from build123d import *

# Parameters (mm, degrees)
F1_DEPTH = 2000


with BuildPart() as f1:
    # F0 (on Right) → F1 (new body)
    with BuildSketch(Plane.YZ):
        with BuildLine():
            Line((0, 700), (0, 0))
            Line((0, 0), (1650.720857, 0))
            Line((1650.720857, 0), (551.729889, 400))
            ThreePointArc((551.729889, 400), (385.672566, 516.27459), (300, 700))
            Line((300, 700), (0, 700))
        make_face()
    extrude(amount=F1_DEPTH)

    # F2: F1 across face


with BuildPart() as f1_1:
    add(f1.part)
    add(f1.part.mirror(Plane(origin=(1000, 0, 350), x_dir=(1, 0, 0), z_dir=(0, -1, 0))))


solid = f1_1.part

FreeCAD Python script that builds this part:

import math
import FreeCAD as App
import Part
import Sketcher
Q = App.Units.Quantity

doc = App.newDocument("Part")
params = doc.addObject("Spreadsheet::Sheet", "Params")
for row, (alias, value) in enumerate([
    ("sketch1_width", "300 mm"),
    ("sketch1_height", "700 mm"),
    ("pad1_length", "2000 mm"),
], start=1):
    params.set(f"A{row}", alias)
    params.set(f"B{row}", "=" + value)
    params.setAlias(f"B{row}", alias)

body = doc.addObject("PartDesign::Body", "Body")

sketch1 = body.newObject("Sketcher::SketchObject", "Sketch")
sketch1.AttachmentSupport = (doc.getObject("YZ_Plane"), [""])
sketch1.MapMode = "FlatFace"
sketch1.addGeometry(Part.LineSegment(App.Vector(0, 700, 0), App.Vector(0, 0, 0)), False)
sketch1.addGeometry(Part.LineSegment(App.Vector(0, 0, 0), App.Vector(1651, 0, 0)), False)
sketch1.addGeometry(Part.LineSegment(App.Vector(1651, 0, 0), App.Vector(552, 400, 0)), False)
sketch1.addGeometry(Part.ArcOfCircle(Part.Circle(App.Vector(686, 768, 0), App.Vector(0, 0, 1), 392), math.radians(-170), math.radians(-110)), False)
sketch1.addGeometry(Part.LineSegment(App.Vector(300, 700, 0), App.Vector(0, 700, 0)), False)
sketch1.addConstraint(Sketcher.Constraint("Coincident", 0, 2, 1, 1))
sketch1.addConstraint(Sketcher.Constraint("Coincident", 1, 2, 2, 1))
sketch1.addConstraint(Sketcher.Constraint("Tangent", 2, 2, 3, 2))
sketch1.addConstraint(Sketcher.Constraint("Coincident", 3, 1, 4, 1))
sketch1.addConstraint(Sketcher.Constraint("Coincident", 4, 2, 0, 1))
sketch1.addConstraint(Sketcher.Constraint("Vertical", 0))
sketch1.addConstraint(Sketcher.Constraint("Horizontal", 1))
sketch1.addConstraint(Sketcher.Constraint("Horizontal", 4))
sketch1.addConstraint(Sketcher.Constraint("Coincident", 0, 2, -1, 1))
sketch1.addConstraint(Sketcher.Constraint("DistanceX", 4, 2, 4, 1, 300.0))
sketch1.addConstraint(Sketcher.Constraint("DistanceY", 0, 2, 0, 1, 700.0))
sketch1.addConstraint(Sketcher.Constraint("Angle", 2, Q("160 deg")))
sketch1.addConstraint(Sketcher.Constraint("DistanceY", -1, 1, 2, 2, 400.0))
sketch1.addConstraint(Sketcher.Constraint("Radius", 3, 391.622189))
sketch1.setExpression("Constraints[9]", "Params.sketch1_width")
sketch1.setExpression("Constraints[10]", "Params.sketch1_height")
pad1 = body.newObject("PartDesign::Pad", "Pad")
pad1.Profile = sketch1
pad1.setExpression("Length", "Params.pad1_length")
body2 = doc.addObject("PartDesign::Body", "Body001")
doc.recompute()

body2.BaseFeature = body
doc.recompute()

mirroring = doc.addObject("Part::Mirroring", "Mirroring")
mirroring.Source = body
mirroring.Base = App.Vector(1000, 0, 350)
mirroring.Normal = App.Vector(0, -1, 0)
body3 = doc.addObject("PartDesign::Body", "Body002")
body3.BaseFeature = mirroring
boolean = body2.newObject("PartDesign::Boolean", "Boolean")
boolean.Type = "Fuse"
boolean.addObjects([body3])
doc.recompute()
mirroring.Visibility = False

doc.recompute()
